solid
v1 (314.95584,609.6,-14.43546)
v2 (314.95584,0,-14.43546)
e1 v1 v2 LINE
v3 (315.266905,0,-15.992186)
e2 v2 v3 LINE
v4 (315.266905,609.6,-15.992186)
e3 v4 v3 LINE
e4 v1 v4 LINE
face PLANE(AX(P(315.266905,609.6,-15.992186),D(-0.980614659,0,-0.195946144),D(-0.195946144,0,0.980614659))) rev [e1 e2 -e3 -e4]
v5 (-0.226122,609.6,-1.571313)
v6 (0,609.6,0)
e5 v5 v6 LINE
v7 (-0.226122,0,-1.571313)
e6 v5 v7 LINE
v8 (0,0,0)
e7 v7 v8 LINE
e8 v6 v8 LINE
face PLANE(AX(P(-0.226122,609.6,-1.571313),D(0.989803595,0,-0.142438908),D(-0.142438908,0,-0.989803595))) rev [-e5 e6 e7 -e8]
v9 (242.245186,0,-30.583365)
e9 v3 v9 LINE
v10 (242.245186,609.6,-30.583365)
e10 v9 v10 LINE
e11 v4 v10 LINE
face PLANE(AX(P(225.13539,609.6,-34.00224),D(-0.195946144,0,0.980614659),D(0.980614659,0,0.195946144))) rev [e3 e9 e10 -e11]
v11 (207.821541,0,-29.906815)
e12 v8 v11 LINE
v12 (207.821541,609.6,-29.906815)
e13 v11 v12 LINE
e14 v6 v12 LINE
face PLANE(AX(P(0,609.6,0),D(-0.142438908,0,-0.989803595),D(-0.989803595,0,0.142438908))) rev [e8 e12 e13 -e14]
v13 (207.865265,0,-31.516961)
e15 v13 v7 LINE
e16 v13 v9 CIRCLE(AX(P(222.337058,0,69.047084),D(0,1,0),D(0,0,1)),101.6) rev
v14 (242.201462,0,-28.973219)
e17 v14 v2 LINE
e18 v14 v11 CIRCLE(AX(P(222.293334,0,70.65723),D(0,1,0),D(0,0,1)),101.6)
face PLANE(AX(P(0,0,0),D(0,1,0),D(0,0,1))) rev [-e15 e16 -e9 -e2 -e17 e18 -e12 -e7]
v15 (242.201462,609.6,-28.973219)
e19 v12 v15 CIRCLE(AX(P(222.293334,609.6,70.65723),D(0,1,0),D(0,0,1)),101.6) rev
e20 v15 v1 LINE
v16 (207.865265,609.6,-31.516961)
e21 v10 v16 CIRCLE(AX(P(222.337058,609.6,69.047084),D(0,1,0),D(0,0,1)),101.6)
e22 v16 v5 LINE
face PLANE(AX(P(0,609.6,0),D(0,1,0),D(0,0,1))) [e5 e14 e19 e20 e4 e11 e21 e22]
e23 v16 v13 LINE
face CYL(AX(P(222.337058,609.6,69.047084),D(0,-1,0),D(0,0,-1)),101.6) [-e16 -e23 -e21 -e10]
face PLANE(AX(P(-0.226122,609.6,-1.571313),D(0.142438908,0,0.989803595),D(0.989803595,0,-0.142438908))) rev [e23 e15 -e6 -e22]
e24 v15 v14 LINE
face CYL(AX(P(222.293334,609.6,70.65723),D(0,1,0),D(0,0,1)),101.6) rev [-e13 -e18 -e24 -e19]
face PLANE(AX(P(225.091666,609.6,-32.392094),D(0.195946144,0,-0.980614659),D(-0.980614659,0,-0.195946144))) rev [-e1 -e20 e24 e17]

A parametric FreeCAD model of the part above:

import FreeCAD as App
import Part
import Sketcher
Q = App.Units.Quantity


def edges_at(feature, points):
    """Names of the edges that pass closest to the given points."""
    edges = feature.Shape.Edges
    near = lambda p: min(range(len(edges)), key=lambda i: edges[i].distToShape(Part.Vertex(*p))[0])
    return sorted({f"Edge{near(p) + 1}" for p in points})


def add_polygon(sketch, points):
    """Adds a closed chain of lines whose ends are joined by coincident constraints."""
    first, n = sketch.GeometryCount, len(points)
    for a, b in zip(points, points[1:] + points[:1]):
        sketch.addGeometry(Part.LineSegment(App.Vector(*a, 0), App.Vector(*b, 0)), False)
    for i in range(n):
        sketch.addConstraint(Sketcher.Constraint("Coincident", first + i, 2, first + (i + 1) % n, 1))

doc = App.newDocument("Part")
body = doc.addObject("PartDesign::Body", "Body")

sketch1 = body.newObject("Sketcher::SketchObject", "Sketch")
sketch1.AttachmentSupport = (doc.getObject("XZ_Plane"), [""])
sketch1.MapMode = "FlatFace"
add_polygon(sketch1, [(0, 0), (225.1, -32.4), (315, -14.4), (315.3, -16), (225.1, -34), (-0.2, -1.6)])
sketch1.addConstraint(Sketcher.Constraint("Coincident", 5, 2, -1, 1))
sketch1.addConstraint(Sketcher.Constraint("Perpendicular", 1, 2))
sketch1.addConstraint(Sketcher.Constraint("Perpendicular", 2, 3))
sketch1.addConstraint(Sketcher.Constraint("Parallel", 0, 4))
sketch1.addConstraint(Sketcher.Constraint("Perpendicular", 4, 5))
sketch1.addConstraint(Sketcher.Constraint("Equal", 2, 5))
sketch1.addConstraint(Sketcher.Constraint("Angle", 1, Q("11.3 deg")))
sketch1.addConstraint(Sketcher.Constraint("Distance", 2, Q("0.0625 in")))
sketch1.addConstraint(Sketcher.Constraint("Distance", 1, Q("3.6079 in")))
sketch1.addConstraint(Sketcher.Constraint("Distance", 4, Q("8.9639 in")))
sketch1.addConstraint(Sketcher.Constraint("DistanceX", -1, 1, 1, 2, Q("314.95584 mm")))
pad1 = body.newObject("PartDesign::Pad", "Pad")
pad1.Profile = sketch1
pad1.Length = Q("24 in")
pad1.Reversed = True
doc.recompute()

fillet = body.newObject("PartDesign::Fillet", "Fillet")
fillet.Base = (pad1, edges_at(pad1, [(225.135, 304.8, -34.002), (225.092, 304.8, -32.392)]))
fillet.Radius = Q("4 in")

doc.recompute()
